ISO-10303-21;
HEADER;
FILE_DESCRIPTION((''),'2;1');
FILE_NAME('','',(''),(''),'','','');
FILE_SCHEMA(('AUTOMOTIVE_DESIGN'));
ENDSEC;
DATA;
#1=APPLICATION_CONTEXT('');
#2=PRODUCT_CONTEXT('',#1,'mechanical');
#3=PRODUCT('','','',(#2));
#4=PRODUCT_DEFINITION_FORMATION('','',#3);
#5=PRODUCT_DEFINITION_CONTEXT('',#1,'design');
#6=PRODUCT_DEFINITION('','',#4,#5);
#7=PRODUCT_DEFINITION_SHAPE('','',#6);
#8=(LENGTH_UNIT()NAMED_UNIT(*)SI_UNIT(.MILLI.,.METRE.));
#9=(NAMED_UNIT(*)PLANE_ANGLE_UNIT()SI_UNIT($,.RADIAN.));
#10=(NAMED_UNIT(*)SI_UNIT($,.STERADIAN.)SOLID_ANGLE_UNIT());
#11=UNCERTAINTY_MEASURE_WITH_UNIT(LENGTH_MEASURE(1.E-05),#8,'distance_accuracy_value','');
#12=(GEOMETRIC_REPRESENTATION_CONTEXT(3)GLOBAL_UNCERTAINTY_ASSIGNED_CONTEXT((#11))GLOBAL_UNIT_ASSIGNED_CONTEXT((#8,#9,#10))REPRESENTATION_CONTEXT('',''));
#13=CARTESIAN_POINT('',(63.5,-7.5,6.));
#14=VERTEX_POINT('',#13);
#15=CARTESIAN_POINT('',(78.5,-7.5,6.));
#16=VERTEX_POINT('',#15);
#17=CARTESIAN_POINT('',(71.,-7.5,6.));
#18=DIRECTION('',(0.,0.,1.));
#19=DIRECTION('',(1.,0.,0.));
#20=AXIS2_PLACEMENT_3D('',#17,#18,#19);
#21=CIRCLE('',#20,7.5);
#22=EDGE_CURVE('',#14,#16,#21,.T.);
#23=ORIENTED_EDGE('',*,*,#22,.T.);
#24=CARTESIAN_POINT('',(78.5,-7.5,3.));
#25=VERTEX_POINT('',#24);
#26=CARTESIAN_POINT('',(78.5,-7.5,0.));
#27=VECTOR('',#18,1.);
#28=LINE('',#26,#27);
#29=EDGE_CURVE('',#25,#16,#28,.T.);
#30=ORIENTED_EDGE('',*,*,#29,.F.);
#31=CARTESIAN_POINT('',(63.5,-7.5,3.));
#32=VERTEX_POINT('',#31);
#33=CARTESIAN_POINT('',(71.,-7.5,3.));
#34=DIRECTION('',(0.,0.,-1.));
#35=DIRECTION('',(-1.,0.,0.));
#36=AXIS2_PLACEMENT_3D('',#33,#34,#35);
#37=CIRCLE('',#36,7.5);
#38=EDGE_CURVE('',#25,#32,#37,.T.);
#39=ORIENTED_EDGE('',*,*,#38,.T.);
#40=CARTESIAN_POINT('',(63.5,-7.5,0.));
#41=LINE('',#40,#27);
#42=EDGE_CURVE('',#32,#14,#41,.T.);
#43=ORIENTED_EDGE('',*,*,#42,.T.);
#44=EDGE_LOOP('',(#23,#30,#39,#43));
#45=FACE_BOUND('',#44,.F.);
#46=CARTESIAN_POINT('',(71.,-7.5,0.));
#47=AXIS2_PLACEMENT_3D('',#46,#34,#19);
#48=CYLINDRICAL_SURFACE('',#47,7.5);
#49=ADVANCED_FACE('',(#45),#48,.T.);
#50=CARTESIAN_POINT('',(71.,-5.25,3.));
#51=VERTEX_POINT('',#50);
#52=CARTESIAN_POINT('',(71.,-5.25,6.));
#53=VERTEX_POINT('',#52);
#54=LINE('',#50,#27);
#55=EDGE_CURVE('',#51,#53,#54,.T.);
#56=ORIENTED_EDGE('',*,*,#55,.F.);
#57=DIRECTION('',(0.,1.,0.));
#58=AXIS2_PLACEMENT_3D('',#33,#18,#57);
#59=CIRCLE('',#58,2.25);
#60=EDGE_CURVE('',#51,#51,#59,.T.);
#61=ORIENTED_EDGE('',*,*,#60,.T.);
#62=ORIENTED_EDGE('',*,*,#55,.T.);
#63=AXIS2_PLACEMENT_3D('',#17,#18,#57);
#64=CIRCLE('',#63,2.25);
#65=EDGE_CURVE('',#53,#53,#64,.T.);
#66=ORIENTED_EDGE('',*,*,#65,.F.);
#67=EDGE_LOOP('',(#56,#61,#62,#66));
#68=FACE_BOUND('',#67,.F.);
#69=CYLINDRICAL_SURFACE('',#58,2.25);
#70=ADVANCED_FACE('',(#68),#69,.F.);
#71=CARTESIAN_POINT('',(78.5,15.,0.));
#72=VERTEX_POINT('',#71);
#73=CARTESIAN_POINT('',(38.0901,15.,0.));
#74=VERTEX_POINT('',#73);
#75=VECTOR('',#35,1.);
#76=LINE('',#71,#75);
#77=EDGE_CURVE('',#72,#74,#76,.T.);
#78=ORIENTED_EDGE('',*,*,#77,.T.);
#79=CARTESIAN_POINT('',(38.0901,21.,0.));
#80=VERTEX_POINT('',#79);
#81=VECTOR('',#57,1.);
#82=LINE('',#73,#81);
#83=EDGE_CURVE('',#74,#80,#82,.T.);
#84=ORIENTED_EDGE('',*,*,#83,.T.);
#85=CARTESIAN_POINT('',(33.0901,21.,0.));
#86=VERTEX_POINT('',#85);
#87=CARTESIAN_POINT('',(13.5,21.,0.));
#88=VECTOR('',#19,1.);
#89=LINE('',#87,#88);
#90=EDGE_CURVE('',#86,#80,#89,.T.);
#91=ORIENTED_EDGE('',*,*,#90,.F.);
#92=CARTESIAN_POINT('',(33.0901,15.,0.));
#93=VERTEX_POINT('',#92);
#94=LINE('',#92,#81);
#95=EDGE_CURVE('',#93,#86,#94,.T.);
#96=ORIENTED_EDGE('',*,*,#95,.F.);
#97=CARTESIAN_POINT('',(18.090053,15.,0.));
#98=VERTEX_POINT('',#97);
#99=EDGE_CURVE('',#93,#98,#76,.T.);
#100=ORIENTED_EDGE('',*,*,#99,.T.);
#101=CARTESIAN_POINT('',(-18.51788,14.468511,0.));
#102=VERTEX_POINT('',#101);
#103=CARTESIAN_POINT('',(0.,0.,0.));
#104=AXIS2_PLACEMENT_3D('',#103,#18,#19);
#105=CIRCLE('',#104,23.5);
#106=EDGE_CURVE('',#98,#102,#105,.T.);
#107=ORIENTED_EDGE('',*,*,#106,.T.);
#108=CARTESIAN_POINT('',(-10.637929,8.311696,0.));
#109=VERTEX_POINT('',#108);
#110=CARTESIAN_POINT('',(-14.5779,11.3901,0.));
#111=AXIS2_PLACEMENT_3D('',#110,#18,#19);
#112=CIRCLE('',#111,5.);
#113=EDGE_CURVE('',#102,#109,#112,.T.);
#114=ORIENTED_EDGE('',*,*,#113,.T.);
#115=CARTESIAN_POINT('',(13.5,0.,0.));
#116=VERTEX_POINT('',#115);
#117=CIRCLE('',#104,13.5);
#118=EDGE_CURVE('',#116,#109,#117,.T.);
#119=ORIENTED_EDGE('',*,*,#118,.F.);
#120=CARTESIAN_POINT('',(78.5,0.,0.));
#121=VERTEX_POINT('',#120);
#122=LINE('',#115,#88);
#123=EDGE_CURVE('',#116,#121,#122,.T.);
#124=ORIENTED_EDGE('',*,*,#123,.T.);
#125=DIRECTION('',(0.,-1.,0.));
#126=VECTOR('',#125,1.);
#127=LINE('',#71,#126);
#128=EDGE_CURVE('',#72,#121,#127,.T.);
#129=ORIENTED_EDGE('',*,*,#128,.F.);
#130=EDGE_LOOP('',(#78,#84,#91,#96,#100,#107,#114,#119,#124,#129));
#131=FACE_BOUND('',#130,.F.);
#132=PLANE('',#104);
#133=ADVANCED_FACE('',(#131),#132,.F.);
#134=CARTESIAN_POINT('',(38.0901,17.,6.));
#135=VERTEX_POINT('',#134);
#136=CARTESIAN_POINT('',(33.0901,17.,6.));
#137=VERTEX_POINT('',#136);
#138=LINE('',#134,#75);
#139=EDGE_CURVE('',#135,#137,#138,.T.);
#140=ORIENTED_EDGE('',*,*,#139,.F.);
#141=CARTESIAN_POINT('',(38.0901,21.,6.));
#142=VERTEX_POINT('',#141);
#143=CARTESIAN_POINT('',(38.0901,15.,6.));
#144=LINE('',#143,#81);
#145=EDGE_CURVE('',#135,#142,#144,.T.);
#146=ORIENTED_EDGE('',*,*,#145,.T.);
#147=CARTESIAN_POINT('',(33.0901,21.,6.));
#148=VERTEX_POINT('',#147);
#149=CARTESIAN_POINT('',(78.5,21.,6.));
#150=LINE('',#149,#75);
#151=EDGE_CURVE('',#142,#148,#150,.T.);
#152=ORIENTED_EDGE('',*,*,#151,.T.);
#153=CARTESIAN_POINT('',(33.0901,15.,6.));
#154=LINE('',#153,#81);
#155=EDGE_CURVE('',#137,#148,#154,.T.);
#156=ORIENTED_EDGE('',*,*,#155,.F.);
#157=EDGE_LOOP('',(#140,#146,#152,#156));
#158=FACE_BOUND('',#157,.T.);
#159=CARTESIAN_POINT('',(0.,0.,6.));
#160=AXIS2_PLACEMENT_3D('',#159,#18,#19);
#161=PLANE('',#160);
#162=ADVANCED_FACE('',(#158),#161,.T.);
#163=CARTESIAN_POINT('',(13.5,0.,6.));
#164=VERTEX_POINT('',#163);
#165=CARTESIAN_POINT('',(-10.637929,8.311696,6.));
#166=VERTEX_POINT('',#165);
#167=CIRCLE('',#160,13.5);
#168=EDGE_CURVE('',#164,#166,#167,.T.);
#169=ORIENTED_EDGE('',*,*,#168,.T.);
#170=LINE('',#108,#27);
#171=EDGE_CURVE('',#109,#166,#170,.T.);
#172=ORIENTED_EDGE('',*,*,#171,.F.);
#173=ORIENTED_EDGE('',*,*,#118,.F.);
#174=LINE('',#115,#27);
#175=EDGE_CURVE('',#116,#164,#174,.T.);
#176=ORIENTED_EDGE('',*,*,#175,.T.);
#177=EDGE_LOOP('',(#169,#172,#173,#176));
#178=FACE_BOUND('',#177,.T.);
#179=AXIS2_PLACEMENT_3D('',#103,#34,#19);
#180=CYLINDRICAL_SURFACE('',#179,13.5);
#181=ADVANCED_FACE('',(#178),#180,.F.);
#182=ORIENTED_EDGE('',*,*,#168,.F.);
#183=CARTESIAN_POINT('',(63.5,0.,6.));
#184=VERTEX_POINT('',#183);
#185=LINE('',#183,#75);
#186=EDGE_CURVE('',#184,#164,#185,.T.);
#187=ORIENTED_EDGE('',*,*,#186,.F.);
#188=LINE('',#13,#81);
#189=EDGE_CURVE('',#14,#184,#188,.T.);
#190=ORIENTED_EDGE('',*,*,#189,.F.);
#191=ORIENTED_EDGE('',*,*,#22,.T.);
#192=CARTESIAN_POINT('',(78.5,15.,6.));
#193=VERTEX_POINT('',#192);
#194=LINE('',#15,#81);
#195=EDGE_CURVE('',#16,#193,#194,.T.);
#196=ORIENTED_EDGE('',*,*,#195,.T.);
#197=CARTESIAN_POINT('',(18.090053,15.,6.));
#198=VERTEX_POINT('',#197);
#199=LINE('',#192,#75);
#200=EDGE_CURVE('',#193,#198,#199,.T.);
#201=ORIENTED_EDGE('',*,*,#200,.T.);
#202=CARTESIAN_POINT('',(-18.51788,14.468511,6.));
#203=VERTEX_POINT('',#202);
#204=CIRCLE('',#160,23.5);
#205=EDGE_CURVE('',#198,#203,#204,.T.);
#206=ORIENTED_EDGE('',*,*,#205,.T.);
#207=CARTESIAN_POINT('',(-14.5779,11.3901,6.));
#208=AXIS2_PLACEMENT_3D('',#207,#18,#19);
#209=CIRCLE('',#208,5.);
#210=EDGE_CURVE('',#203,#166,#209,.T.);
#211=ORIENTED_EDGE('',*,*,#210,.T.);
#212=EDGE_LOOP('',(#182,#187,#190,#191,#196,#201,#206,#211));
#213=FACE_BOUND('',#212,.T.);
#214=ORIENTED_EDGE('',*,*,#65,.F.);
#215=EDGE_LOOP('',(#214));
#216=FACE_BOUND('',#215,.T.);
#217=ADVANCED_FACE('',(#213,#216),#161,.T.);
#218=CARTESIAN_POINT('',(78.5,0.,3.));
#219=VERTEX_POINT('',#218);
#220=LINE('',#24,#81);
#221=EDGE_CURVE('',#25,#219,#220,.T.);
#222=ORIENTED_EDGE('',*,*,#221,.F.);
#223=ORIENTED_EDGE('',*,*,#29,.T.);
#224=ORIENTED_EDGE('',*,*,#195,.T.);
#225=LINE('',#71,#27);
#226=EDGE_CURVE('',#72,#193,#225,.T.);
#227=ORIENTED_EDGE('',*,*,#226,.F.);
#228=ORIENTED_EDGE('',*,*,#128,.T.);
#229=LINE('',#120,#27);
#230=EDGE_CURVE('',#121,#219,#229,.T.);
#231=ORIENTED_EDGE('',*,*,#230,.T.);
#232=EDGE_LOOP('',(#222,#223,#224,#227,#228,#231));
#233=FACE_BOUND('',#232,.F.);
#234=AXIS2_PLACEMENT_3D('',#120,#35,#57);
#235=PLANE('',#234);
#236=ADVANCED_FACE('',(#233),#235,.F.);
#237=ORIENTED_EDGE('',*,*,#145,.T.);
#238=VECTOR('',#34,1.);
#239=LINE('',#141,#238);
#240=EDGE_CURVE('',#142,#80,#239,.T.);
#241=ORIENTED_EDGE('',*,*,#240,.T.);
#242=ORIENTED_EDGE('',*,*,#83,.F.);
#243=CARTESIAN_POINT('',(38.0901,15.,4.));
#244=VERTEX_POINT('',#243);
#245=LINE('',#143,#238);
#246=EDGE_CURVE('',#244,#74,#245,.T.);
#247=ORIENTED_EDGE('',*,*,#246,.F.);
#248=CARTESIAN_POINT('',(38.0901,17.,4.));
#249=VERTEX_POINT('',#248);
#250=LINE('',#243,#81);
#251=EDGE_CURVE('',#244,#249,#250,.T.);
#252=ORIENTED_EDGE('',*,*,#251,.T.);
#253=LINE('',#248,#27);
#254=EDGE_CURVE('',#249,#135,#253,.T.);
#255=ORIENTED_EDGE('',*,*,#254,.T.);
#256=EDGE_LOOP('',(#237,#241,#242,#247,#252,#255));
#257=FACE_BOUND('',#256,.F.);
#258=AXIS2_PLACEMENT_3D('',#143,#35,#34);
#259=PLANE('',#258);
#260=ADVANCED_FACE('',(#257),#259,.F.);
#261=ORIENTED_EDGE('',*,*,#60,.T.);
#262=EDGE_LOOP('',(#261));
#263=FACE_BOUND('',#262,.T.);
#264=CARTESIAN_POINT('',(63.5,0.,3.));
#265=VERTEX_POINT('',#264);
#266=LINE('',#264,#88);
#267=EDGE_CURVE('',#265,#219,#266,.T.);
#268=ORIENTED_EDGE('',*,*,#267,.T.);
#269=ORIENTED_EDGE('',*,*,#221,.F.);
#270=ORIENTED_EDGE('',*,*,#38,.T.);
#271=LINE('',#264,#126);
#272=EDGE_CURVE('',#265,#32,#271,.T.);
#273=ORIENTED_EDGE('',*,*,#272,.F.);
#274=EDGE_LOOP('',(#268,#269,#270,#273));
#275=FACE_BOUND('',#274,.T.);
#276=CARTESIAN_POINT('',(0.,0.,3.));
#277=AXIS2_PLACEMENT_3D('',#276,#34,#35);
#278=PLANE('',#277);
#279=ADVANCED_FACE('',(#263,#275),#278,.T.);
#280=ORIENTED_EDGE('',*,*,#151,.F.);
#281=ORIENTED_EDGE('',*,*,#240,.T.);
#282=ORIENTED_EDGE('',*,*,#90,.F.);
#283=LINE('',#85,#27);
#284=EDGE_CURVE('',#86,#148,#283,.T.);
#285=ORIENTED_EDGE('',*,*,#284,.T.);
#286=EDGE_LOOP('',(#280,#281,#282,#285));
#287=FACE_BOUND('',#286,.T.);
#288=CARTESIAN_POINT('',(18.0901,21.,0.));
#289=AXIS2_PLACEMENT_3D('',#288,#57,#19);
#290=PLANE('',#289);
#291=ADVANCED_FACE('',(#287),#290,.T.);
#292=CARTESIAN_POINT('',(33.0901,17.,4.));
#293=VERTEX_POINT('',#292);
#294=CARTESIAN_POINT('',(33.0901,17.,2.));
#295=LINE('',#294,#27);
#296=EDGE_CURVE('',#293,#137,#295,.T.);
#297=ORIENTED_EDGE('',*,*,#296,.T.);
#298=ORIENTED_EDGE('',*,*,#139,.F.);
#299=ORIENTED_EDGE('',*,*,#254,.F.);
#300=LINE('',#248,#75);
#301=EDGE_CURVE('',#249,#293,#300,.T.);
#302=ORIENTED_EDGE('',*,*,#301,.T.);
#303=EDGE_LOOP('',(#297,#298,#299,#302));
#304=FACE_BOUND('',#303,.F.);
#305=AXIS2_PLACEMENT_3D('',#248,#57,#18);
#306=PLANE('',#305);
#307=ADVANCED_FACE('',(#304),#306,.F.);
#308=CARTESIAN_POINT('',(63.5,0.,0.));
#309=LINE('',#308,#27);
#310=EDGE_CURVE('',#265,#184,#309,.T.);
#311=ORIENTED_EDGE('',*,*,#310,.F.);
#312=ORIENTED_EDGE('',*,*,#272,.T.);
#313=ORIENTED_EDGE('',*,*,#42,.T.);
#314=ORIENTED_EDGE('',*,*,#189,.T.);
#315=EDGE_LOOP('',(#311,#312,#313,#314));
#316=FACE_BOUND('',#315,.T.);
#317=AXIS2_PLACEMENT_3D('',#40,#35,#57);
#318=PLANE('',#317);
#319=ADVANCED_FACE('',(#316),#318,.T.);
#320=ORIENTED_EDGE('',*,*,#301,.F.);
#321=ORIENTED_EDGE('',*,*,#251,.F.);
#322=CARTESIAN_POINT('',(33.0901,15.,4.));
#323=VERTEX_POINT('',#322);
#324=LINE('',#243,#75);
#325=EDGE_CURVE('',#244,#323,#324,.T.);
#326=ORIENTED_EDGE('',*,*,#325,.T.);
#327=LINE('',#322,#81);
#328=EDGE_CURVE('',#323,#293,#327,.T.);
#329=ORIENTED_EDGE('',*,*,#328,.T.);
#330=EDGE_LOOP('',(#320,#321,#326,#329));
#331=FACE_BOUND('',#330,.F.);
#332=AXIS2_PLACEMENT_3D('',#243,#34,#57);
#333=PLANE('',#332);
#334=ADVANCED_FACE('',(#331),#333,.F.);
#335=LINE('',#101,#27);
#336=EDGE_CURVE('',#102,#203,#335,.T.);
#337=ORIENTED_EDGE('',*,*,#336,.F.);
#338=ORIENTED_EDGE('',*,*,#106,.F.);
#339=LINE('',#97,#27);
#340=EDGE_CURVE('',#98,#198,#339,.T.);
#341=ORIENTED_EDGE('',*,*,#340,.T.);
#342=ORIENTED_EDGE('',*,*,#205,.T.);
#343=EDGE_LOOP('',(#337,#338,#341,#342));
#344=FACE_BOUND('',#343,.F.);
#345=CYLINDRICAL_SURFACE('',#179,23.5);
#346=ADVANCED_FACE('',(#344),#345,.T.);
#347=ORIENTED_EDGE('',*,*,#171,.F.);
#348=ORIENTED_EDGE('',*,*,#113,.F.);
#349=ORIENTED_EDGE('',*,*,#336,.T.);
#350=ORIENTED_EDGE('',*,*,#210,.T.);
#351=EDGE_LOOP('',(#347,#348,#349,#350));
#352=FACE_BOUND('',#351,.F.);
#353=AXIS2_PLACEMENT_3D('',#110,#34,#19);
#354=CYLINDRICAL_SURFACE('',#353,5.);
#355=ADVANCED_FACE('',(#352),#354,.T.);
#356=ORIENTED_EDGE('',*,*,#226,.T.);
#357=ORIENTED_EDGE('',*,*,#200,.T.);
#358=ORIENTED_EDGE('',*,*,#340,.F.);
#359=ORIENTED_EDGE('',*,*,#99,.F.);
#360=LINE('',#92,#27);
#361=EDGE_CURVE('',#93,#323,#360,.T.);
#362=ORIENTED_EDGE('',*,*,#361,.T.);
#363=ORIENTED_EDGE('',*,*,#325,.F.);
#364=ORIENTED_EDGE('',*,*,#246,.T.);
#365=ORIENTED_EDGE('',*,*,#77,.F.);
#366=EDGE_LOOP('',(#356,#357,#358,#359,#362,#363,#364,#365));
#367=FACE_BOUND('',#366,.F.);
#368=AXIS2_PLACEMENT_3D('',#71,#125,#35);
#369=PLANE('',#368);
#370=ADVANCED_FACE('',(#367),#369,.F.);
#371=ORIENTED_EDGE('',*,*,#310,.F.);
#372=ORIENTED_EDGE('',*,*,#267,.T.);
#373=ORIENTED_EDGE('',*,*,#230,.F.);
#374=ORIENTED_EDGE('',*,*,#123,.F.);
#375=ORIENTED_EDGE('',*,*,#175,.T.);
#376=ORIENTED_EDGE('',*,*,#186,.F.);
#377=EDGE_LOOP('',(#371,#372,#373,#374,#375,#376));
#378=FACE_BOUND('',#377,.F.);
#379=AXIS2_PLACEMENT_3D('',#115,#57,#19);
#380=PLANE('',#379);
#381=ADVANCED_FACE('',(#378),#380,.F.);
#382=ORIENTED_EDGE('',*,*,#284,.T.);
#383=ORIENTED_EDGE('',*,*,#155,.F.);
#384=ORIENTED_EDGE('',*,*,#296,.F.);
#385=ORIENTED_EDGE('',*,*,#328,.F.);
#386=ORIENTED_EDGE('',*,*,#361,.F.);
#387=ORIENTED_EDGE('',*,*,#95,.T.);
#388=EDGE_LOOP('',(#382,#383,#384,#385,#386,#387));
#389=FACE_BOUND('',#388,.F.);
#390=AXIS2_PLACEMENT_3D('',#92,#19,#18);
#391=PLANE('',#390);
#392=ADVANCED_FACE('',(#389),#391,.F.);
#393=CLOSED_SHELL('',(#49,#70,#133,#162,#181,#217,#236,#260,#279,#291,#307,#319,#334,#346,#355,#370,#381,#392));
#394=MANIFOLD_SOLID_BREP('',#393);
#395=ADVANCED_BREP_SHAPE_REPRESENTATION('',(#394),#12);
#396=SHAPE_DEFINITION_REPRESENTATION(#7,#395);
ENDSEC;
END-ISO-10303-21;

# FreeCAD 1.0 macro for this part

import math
import FreeCAD as App
import Part
import Sketcher

V = App.Vector

doc = App.newDocument("Part")
body = doc.addObject("PartDesign::Body", "Body")

# Sketch on XY plane
sketch1 = body.newObject("Sketcher::SketchObject", "Sketch")
sketch1.AttachmentSupport = (doc.getObject("XY_Plane"), [""])
sketch1.MapMode = "FlatFace"
sketch1.addGeometry([
    Part.LineSegment(V(13.5, 0, 0), V(63.5, 0, 0)),  # 0
    Part.LineSegment(V(63.5, 0, 0), V(63.5, -7.5, 0)),  # 1
    Part.ArcOfCircle(Part.Circle(V(71, -7.5, 0), V(0, 0, 1), 7.5), math.radians(180), math.radians(360)),  # 2
    Part.LineSegment(V(78.5, -7.5, 0), V(78.5, 15, 0)),  # 3
    Part.LineSegment(V(78.5, 15, 0), V(18.090053, 15, 0)),  # 4
    Part.ArcOfCircle(Part.Circle(V(0, 0, 0), V(0, 0, 1), 23.5), math.radians(39.665013), math.radians(141.998545)),  # 5
    Part.ArcOfCircle(Part.Circle(V(-14.5779, 11.3901, 0), V(0, 0, 1), 5), math.radians(141.998544), math.radians(321.998545)),  # 6
    Part.ArcOfCircle(Part.Circle(V(0, 0, 0), V(0, 0, 1), 13.5), math.radians(0), math.radians(141.998545)),  # 7
], False)
sketch1.addConstraint([
    Sketcher.Constraint("Coincident", 0, 2, 1, 1),
    Sketcher.Constraint("Tangent", 1, 2, 2, 1),
    Sketcher.Constraint("Tangent", 2, 2, 3, 1),
    Sketcher.Constraint("Coincident", 3, 2, 4, 1),
    Sketcher.Constraint("Coincident", 4, 2, 5, 1),
    Sketcher.Constraint("Tangent", 5, 2, 6, 1),
    Sketcher.Constraint("Tangent", 6, 2, 7, 2),
    Sketcher.Constraint("Coincident", 7, 1, 0, 1),
    Sketcher.Constraint("Horizontal", 0),
    Sketcher.Constraint("Vertical", 1),
    Sketcher.Constraint("Vertical", 3),
    Sketcher.Constraint("Horizontal", 4),
    Sketcher.Constraint("Coincident", 5, 3, -1, 1),
    Sketcher.Constraint("Coincident", 7, 3, -1, 1),
    Sketcher.Constraint("PointOnObject", 0, 2, -1),
    Sketcher.Constraint("Radius", 2, 7.5),
    Sketcher.Constraint("Radius", 5, 23.5),
    Sketcher.Constraint("Radius", 7, 13.5),
    Sketcher.Constraint("DistanceY", -1, 1, 3, 2, 15.0),
    Sketcher.Constraint("DistanceX", 0, 1, 0, 2, 50.0),
    Sketcher.Constraint("DistanceY", 1, 2, 1, 1, 7.5),
    Sketcher.Constraint("DistanceY", -1, 1, 6, 3, 11.39),
])
pad1 = body.newObject("PartDesign::Pad", "Pad")
pad1.Profile = sketch1
pad1.Length = 6

# Sketch on XY plane
sketch2 = body.newObject("Sketcher::SketchObject", "Sketch001")
sketch2.AttachmentSupport = (doc.getObject("XY_Plane"), [""])
sketch2.MapMode = "FlatFace"
sketch2.addGeometry([
    Part.LineSegment(V(78.5, 0, 0), V(78.5, -7.5, 0)),
    Part.ArcOfCircle(Part.Circle(V(71, -7.5, 0), V(0, 0, 1), 7.5), math.radians(180), math.radians(360)),
    Part.LineSegment(V(63.5, -7.5, 0), V(63.5, 0, 0)),
    Part.LineSegment(V(63.5, 0, 0), V(78.5, 0, 0)),
], False)
sketch2.addConstraint([
    Sketcher.Constraint("Tangent", 0, 2, 1, 2),
    Sketcher.Constraint("Tangent", 1, 1, 2, 1),
    Sketcher.Constraint("Coincident", 2, 2, 3, 1),
    Sketcher.Constraint("Coincident", 3, 2, 0, 1),
    Sketcher.Constraint("Vertical", 0),
    Sketcher.Constraint("Vertical", 2),
    Sketcher.Constraint("Horizontal", 3),
    Sketcher.Constraint("PointOnObject", 2, 2, -1),
    Sketcher.Constraint("Radius", 1, 7.5),
    Sketcher.Constraint("DistanceY", 0, 2, 0, 1, 7.5),
    Sketcher.Constraint("DistanceX", -1, 1, 1, 3, 71.0),
])
pocket1 = body.newObject("PartDesign::Pocket", "Pocket")
pocket1.Profile = sketch2
pocket1.Length = 3
pocket1.Reversed = True

# Sketch on XY plane
sketch3 = body.newObject("Sketcher::SketchObject", "Sketch002")
sketch3.AttachmentSupport = (doc.getObject("XY_Plane"), [""])
sketch3.MapMode = "FlatFace"
sketch3.AttachmentOffset = App.Placement(V(0, 0, 3), App.Rotation())
sketch3.addGeometry(Part.Circle(V(71, -7.5, 0), V(0, 0, 1), 2.25), False)
sketch3.addConstraint([
    Sketcher.Constraint("Diameter", 0, 4.5),
    Sketcher.Constraint("DistanceX", -1, 1, 0, 3, 71.0),
    Sketcher.Constraint("DistanceY", 0, 3, -1, 1, 7.5),
])
doc.recompute()
hole = body.newObject("PartDesign::Hole", "Hole")
hole.Profile = sketch3
hole.ThreadType = "None"
hole.Diameter = 4.5
hole.DepthType = "ThroughAll"
hole.Reversed = True

# Sketch on XZ plane
sketch4 = body.newObject("Sketcher::SketchObject", "Sketch003")
sketch4.AttachmentSupport = (doc.getObject("XZ_Plane"), [""])
sketch4.MapMode = "FlatFace"
sketch4.AttachmentOffset = App.Placement(V(0, 0, -15), App.Rotation())
sketch4.addGeometry([
    Part.LineSegment(V(33.0901, 6, 0), V(38.0901, 6, 0)),
    Part.LineSegment(V(38.0901, 6, 0), V(38.0901, 0, 0)),
    Part.LineSegment(V(38.0901, 0, 0), V(33.0901, 0, 0)),
    Part.LineSegment(V(33.0901, 0, 0), V(33.0901, 6, 0)),
], False)
sketch4.addConstraint([
    Sketcher.Constraint("Coincident", 0, 2, 1, 1),
    Sketcher.Constraint("Coincident", 1, 2, 2, 1),
    Sketcher.Constraint("Coincident", 2, 2, 3, 1),
    Sketcher.Constraint("Coincident", 3, 2, 0, 1),
    Sketcher.Constraint("Horizontal", 0),
    Sketcher.Constraint("Vertical", 1),
    Sketcher.Constraint("Horizontal", 2),
    Sketcher.Constraint("Vertical", 3),
    Sketcher.Constraint("PointOnObject", 1, 2, -1),
    Sketcher.Constraint("DistanceX", 0, 1, 0, 2, 5.0),
    Sketcher.Constraint("DistanceY", 1, 2, 1, 1, 6.0),
    Sketcher.Constraint("DistanceX", -1, 1, 0, 2, 38.09),
])
pad2 = body.newObject("PartDesign::Pad", "Pad001")
pad2.Profile = sketch4
pad2.Length = 6
pad2.Reversed = True

# Sketch on YZ plane
sketch5 = body.newObject("Sketcher::SketchObject", "Sketch004")
sketch5.AttachmentSupport = (doc.getObject("YZ_Plane"), [""])
sketch5.MapMode = "FlatFace"
sketch5.AttachmentOffset = App.Placement(V(0, 0, 38.0901), App.Rotation())
sketch5.addGeometry([
    Part.LineSegment(V(17, 6, 0), V(15, 6, 0)),
    Part.LineSegment(V(15, 6, 0), V(15, 4, 0)),
    Part.LineSegment(V(15, 4, 0), V(17, 4, 0)),
    Part.LineSegment(V(17, 4, 0), V(17, 6, 0)),
], False)
sketch5.addConstraint([
    Sketcher.Constraint("Coincident", 0, 2, 1, 1),
    Sketcher.Constraint("Coincident", 1, 2, 2, 1),
    Sketcher.Constraint("Coincident", 2, 2, 3, 1),
    Sketcher.Constraint("Coincident", 3, 2, 0, 1),
    Sketcher.Constraint("Horizontal", 0),
    Sketcher.Constraint("Vertical", 1),
    Sketcher.Constraint("Horizontal", 2),
    Sketcher.Constraint("Vertical", 3),
    Sketcher.Constraint("Equal", 2, 1),
    Sketcher.Constraint("DistanceX", 0, 2, 0, 1, 2.0),
    Sketcher.Constraint("DistanceX", -1, 1, 0, 2, 15.0),
    Sketcher.Constraint("DistanceY", -1, 1, 0, 2, 6.0),
])
pocket2 = body.newObject("PartDesign::Pocket", "Pocket001")
pocket2.Profile = sketch5
pocket2.Length = 6

doc.recompute()
